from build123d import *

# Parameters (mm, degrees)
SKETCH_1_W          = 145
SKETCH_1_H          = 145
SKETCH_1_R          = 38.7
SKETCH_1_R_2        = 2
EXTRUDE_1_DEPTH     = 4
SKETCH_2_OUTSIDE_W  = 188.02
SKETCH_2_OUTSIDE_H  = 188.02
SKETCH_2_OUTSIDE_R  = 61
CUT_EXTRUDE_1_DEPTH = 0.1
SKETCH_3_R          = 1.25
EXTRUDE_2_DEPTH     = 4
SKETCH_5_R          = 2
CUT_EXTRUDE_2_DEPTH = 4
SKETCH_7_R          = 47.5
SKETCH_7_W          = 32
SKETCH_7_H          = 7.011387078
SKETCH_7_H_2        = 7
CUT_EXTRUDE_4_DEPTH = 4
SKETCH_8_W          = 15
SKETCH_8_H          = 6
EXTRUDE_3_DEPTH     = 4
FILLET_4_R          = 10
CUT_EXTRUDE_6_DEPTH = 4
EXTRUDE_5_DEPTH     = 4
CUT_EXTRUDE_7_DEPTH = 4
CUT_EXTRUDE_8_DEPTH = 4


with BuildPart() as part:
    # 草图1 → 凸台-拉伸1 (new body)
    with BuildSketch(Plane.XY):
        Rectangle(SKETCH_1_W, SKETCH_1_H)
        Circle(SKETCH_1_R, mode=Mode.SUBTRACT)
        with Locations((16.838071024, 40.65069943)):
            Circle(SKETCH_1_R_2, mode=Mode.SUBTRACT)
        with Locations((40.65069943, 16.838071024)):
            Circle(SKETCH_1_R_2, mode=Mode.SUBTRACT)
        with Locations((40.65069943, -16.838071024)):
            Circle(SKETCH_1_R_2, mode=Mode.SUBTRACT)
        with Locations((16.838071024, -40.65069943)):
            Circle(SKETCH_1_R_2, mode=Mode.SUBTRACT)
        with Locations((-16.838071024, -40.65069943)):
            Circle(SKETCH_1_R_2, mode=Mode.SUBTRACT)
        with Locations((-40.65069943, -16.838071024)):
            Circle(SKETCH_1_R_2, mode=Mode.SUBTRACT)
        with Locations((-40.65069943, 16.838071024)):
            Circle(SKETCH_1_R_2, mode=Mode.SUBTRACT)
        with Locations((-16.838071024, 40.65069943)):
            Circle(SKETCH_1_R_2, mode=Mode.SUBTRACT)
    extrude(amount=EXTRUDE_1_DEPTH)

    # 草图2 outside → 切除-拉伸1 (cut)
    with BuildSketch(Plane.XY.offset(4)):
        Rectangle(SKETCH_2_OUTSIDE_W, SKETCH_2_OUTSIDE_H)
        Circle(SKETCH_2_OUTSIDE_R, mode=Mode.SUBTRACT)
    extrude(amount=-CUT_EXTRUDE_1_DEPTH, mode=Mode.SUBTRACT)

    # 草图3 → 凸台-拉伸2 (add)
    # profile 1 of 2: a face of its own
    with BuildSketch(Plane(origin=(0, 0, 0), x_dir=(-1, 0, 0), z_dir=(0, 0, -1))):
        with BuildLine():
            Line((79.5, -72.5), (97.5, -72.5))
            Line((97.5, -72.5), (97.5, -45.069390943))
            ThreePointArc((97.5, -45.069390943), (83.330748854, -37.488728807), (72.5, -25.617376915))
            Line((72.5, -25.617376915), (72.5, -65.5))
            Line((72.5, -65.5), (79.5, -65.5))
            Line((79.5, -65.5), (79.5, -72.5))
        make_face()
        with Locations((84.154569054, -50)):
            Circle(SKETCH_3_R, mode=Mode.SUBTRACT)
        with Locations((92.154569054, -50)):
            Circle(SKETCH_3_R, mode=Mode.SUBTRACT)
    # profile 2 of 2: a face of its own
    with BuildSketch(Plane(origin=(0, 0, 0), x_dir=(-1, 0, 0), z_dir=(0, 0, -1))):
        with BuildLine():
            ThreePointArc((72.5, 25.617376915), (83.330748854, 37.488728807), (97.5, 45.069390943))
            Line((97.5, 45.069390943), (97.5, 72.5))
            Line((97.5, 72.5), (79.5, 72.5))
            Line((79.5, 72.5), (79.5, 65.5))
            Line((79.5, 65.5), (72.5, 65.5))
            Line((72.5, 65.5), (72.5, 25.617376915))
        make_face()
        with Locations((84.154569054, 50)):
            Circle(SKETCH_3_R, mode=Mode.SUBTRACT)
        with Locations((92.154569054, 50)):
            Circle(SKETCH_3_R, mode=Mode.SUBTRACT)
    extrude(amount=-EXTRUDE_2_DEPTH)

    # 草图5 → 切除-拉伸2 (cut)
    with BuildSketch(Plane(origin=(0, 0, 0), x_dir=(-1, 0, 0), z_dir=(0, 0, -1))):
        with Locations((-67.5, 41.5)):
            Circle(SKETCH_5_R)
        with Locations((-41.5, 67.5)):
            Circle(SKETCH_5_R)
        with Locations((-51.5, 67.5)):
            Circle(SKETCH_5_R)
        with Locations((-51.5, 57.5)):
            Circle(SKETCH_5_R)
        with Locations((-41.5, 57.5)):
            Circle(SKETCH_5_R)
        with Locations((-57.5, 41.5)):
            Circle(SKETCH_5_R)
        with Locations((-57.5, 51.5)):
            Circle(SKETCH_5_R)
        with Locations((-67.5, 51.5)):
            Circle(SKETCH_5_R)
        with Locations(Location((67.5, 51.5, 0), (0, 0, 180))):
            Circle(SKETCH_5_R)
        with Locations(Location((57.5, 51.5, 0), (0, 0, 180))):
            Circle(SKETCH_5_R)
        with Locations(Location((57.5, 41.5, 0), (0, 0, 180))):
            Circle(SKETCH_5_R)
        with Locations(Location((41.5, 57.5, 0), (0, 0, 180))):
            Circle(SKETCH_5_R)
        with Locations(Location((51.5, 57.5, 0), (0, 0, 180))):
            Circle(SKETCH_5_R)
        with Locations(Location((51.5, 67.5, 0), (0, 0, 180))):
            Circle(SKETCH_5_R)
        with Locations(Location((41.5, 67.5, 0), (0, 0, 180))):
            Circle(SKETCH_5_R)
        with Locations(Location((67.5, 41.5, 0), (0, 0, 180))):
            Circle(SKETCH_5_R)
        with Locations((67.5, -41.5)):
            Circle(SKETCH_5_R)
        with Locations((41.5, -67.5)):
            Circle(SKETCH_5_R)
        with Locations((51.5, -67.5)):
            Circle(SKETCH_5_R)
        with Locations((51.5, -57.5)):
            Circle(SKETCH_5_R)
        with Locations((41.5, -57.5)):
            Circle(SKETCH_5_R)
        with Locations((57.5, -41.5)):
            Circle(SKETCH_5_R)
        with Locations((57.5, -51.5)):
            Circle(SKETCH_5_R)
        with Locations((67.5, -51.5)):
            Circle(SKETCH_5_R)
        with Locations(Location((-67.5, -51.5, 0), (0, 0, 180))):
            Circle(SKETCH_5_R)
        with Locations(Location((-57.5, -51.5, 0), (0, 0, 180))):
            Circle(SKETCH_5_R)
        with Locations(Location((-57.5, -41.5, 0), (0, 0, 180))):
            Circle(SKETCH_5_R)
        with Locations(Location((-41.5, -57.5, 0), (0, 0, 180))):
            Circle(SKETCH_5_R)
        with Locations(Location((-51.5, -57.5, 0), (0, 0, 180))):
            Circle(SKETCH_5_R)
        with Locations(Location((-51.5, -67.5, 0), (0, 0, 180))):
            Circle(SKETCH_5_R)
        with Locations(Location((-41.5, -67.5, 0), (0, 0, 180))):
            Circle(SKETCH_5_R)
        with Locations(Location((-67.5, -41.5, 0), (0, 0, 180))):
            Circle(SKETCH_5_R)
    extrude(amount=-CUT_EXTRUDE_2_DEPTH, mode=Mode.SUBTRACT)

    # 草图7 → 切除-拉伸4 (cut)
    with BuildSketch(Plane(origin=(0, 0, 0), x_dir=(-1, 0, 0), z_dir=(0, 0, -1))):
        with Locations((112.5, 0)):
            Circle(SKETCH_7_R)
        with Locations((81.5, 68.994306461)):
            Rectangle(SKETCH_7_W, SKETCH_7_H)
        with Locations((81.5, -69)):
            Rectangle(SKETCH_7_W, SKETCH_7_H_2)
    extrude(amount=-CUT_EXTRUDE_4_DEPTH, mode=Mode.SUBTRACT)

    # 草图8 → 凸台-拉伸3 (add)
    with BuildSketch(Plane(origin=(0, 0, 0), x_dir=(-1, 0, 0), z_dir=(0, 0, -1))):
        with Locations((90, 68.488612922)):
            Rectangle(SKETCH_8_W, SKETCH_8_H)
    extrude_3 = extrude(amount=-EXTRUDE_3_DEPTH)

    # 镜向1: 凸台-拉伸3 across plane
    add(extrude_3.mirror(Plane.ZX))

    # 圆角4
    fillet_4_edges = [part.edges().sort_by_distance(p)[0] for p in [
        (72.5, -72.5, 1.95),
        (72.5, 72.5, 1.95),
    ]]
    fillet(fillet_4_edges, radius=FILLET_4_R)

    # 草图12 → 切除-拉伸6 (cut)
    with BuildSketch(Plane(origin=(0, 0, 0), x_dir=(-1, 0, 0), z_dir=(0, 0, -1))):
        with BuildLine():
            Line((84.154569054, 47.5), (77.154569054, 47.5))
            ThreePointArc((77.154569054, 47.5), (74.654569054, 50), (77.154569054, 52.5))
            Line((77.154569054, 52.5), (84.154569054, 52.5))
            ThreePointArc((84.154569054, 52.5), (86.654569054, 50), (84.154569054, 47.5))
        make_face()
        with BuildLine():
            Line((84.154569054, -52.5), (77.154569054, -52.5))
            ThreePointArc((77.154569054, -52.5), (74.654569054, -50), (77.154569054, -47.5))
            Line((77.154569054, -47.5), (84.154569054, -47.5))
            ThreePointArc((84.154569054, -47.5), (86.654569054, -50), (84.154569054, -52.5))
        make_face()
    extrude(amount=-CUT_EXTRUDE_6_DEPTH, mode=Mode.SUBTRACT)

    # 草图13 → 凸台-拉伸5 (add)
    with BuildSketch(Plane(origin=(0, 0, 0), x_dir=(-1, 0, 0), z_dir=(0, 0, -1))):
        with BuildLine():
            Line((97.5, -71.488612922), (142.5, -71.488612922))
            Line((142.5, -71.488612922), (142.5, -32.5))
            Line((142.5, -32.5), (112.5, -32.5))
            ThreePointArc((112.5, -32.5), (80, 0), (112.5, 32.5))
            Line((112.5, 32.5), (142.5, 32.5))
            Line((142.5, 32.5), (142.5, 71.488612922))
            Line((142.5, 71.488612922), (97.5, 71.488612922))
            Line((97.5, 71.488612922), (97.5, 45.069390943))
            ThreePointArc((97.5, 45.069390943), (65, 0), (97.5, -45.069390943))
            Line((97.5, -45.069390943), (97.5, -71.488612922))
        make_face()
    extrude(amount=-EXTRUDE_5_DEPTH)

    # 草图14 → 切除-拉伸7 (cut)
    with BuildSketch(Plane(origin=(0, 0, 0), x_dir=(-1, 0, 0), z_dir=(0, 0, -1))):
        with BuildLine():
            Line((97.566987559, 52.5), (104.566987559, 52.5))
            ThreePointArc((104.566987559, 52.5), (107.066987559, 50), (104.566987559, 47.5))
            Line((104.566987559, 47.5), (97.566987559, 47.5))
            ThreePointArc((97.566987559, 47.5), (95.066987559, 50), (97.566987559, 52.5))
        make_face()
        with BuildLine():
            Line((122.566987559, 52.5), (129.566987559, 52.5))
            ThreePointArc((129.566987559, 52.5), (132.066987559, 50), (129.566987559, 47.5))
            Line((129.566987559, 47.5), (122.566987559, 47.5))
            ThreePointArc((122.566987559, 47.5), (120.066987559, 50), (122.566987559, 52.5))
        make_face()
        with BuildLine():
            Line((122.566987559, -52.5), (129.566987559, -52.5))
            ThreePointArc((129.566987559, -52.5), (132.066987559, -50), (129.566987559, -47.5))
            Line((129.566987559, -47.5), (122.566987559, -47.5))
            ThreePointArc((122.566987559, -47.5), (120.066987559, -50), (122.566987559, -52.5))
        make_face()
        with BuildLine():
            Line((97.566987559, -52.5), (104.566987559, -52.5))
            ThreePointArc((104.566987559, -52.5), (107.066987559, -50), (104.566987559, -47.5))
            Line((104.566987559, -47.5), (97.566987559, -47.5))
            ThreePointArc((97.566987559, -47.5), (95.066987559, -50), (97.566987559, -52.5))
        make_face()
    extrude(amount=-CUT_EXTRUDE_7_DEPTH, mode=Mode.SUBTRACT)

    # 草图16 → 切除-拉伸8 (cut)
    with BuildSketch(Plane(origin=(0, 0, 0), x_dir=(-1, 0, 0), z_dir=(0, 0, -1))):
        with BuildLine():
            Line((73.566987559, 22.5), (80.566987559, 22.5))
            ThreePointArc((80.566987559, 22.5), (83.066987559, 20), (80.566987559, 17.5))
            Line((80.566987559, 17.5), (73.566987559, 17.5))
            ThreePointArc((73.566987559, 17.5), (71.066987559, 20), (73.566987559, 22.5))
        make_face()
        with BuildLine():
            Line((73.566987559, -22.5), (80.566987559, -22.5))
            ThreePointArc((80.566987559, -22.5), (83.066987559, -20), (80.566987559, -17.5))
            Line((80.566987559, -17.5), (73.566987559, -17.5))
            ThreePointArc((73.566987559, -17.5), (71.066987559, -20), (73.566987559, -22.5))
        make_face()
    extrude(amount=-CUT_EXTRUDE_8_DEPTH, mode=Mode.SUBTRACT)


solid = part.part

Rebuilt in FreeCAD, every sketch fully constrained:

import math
import FreeCAD as App
import Part
import Sketcher


def edges_at(feature, points):
    """Names of the edges that pass closest to the given points."""
    edges = feature.Shape.Edges
    near = lambda p: min(range(len(edges)), key=lambda i: edges[i].distToShape(Part.Vertex(*p))[0])
    return sorted({f"Edge{near(p) + 1}" for p in points})


def add_polygon(sketch, points):
    """Adds a closed chain of lines whose ends are joined by coincident constraints."""
    first, n = sketch.GeometryCount, len(points)
    for a, b in zip(points, points[1:] + points[:1]):
        sketch.addGeometry(Part.LineSegment(App.Vector(*a, 0), App.Vector(*b, 0)), False)
    for i in range(n):
        sketch.addConstraint(Sketcher.Constraint("Coincident", first + i, 2, first + (i + 1) % n, 1))

doc = App.newDocument("Part")
body = doc.addObject("PartDesign::Body", "Body")

# Sketch on XY plane
sketch1 = doc.addObject("Sketcher::SketchObject", "Sketch")
body.addObject(sketch1)
sketch1.AttachmentSupport = (doc.XY_Plane, [""])
sketch1.MapMode = "FlatFace"
add_polygon(sketch1, [(-72.5, 72.5), (-72.5, -72.5), (72.5, -72.5), (72.5, 72.5)])  # lines 0-3
sketch1.addGeometry(Part.Circle(App.Vector(-16.8, -40.7, 0), App.Vector(0, 0, 1), 2), False)  # 4
sketch1.addGeometry(Part.Circle(App.Vector(-40.7, -16.8, 0), App.Vector(0, 0, 1), 2), False)  # 5
sketch1.addGeometry(Part.Circle(App.Vector(16.8, -40.7, 0), App.Vector(0, 0, 1), 2), False)  # 6
sketch1.addGeometry(Part.Circle(App.Vector(40.7, -16.8, 0), App.Vector(0, 0, 1), 2), False)  # 7
sketch1.addGeometry(Part.Circle(App.Vector(-40.7, 16.8, 0), App.Vector(0, 0, 1), 2), False)  # 8
sketch1.addGeometry(Part.Circle(App.Vector(-16.8, 40.7, 0), App.Vector(0, 0, 1), 2), False)  # 9
sketch1.addGeometry(Part.Circle(App.Vector(0, 0, 0), App.Vector(0, 0, 1), 38.7), False)  # 10
sketch1.addGeometry(Part.Circle(App.Vector(40.7, 16.8, 0), App.Vector(0, 0, 1), 2), False)  # 11
sketch1.addGeometry(Part.Circle(App.Vector(16.8, 40.7, 0), App.Vector(0, 0, 1), 2), False)  # 12
sketch1.addConstraint(Sketcher.Constraint("Vertical", 0))
sketch1.addConstraint(Sketcher.Constraint("Horizontal", 1))
sketch1.addConstraint(Sketcher.Constraint("Vertical", 2))
sketch1.addConstraint(Sketcher.Constraint("Horizontal", 3))
sketch1.addConstraint(Sketcher.Constraint("Coincident", 10, 3, -1, 1))
sketch1.addConstraint(Sketcher.Constraint("Equal", 4, 5))
sketch1.addConstraint(Sketcher.Constraint("Equal", 5, 6))
sketch1.addConstraint(Sketcher.Constraint("Equal", 6, 7))
sketch1.addConstraint(Sketcher.Constraint("Equal", 7, 8))
sketch1.addConstraint(Sketcher.Constraint("Equal", 8, 9))
sketch1.addConstraint(Sketcher.Constraint("Equal", 9, 11))
sketch1.addConstraint(Sketcher.Constraint("Equal", 11, 12))
sketch1.addConstraint(Sketcher.Constraint("Symmetric", 7, 3, 8, 3, -1, 1))
sketch1.addConstraint(Sketcher.Constraint("Symmetric", 6, 3, 9, 3, -1, 1))
sketch1.addConstraint(Sketcher.Constraint("Symmetric", 5, 3, 11, 3, -1, 1))
sketch1.addConstraint(Sketcher.Constraint("Symmetric", 4, 3, 12, 3, -1, 1))
sketch1.addConstraint(Sketcher.Constraint("Symmetric", 0, 2, 2, 2, -1, 1))
sketch1.addConstraint(Sketcher.Constraint("Symmetric", 4, 3, 6, 3, -2))
sketch1.addConstraint(Sketcher.Constraint("Symmetric", 5, 3, 7, 3, -2))
sketch1.addConstraint(Sketcher.Constraint("Equal", 3, 0))
sketch1.addConstraint(Sketcher.Constraint("Diameter", 4, 4.0))
sketch1.addConstraint(Sketcher.Constraint("Diameter", 10, 77.4))
sketch1.addConstraint(Sketcher.Constraint("DistanceX", 1, 1, 1, 2, 145.0))
sketch1.addConstraint(Sketcher.Constraint("DistanceY", 4, 3, -1, 1, 40.650699))
sketch1.addConstraint(Sketcher.Constraint("DistanceX", 5, 3, -1, 1, 40.650699))
sketch1.addConstraint(Sketcher.Constraint("DistanceX", 4, 3, -1, 1, 16.838071))
sketch1.addConstraint(Sketcher.Constraint("DistanceY", 5, 3, -1, 1, 16.838071))
pad1 = doc.addObject("PartDesign::Pad", "Pad")
body.addObject(pad1)
pad1.Profile = sketch1
pad1.Length = 4

# Sketch on XY plane
sketch2 = doc.addObject("Sketcher::SketchObject", "Sketch001")
body.addObject(sketch2)
sketch2.AttachmentSupport = (doc.XY_Plane, [""])
sketch2.MapMode = "FlatFace"
sketch2.AttachmentOffset = App.Placement(App.Vector(0, 0, 4), App.Rotation())
add_polygon(sketch2, [(-94, 94), (-94, -94), (94, -94), (94, 94)])  # lines 0-3
sketch2.addGeometry(Part.Circle(App.Vector(0, 0, 0), App.Vector(0, 0, 1), 61), False)  # 4
sketch2.addConstraint(Sketcher.Constraint("Vertical", 0))
sketch2.addConstraint(Sketcher.Constraint("Horizontal", 1))
sketch2.addConstraint(Sketcher.Constraint("Vertical", 2))
sketch2.addConstraint(Sketcher.Constraint("Horizontal", 3))
sketch2.addConstraint(Sketcher.Constraint("Coincident", 4, 3, -1, 1))
sketch2.addConstraint(Sketcher.Constraint("Symmetric", 0, 2, 2, 2, -1, 1))
sketch2.addConstraint(Sketcher.Constraint("Equal", 3, 0))
sketch2.addConstraint(Sketcher.Constraint("Diameter", 4, 122.0))
sketch2.addConstraint(Sketcher.Constraint("DistanceX", 1, 1, 1, 2, 188.02))
pocket1 = doc.addObject("PartDesign::Pocket", "Pocket")
body.addObject(pocket1)
pocket1.Profile = sketch2
pocket1.Length = 0.1

# Sketch on XY plane
sketch3 = doc.addObject("Sketcher::SketchObject", "Sketch002")
body.addObject(sketch3)
sketch3.AttachmentSupport = (doc.XY_Plane, [""])
sketch3.MapMode = "FlatFace"
sketch3.addGeometry(Part.LineSegment(App.Vector(-79.5, -72.5, 0), App.Vector(-97.5, -72.5, 0)), False)
sketch3.addGeometry(Part.LineSegment(App.Vector(-97.5, -72.5, 0), App.Vector(-97.5, -45.1, 0)), False)
sketch3.addGeometry(Part.ArcOfCircle(Part.Circle(App.Vector(-112.5, 0, 0), App.Vector(0, 0, 1), 47.5), math.radians(-72), math.radians(-33)), False)
sketch3.addGeometry(Part.LineSegment(App.Vector(-72.5, -25.6, 0), App.Vector(-72.5, -65.5, 0)), False)
sketch3.addGeometry(Part.LineSegment(App.Vector(-72.5, -65.5, 0), App.Vector(-79.5, -65.5, 0)), False)
sketch3.addGeometry(Part.LineSegment(App.Vector(-79.5, -65.5, 0), App.Vector(-79.5, -72.5, 0)), False)
sketch3.addGeometry(Part.Circle(App.Vector(-84.2, -50, 0), App.Vector(0, 0, 1), 1.2), False)
sketch3.addGeometry(Part.Circle(App.Vector(-92.2, -50, 0), App.Vector(0, 0, 1), 1.2), False)
sketch3.addGeometry(Part.ArcOfCircle(Part.Circle(App.Vector(-112.5, 0, 0), App.Vector(0, 0, 1), 47.5), math.radians(33), math.radians(72)), False)
sketch3.addGeometry(Part.LineSegment(App.Vector(-97.5, 45.1, 0), App.Vector(-97.5, 72.5, 0)), False)
sketch3.addGeometry(Part.LineSegment(App.Vector(-97.5, 72.5, 0), App.Vector(-79.5, 72.5, 0)), False)
sketch3.addGeometry(Part.LineSegment(App.Vector(-79.5, 72.5, 0), App.Vector(-79.5, 65.5, 0)), False)
sketch3.addGeometry(Part.LineSegment(App.Vector(-79.5, 65.5, 0), App.Vector(-72.5, 65.5, 0)), False)
sketch3.addGeometry(Part.LineSegment(App.Vector(-72.5, 65.5, 0), App.Vector(-72.5, 25.6, 0)), False)
sketch3.addGeometry(Part.Circle(App.Vector(-84.2, 50, 0), App.Vector(0, 0, 1), 1.2), False)
sketch3.addGeometry(Part.Circle(App.Vector(-92.2, 50, 0), App.Vector(0, 0, 1), 1.2), False)
sketch3.addConstraint(Sketcher.Constraint("Coincident", 0, 2, 1, 1))
sketch3.addConstraint(Sketcher.Constraint("Coincident", 1, 2, 2, 1))
sketch3.addConstraint(Sketcher.Constraint("Coincident", 2, 2, 3, 1))
sketch3.addConstraint(Sketcher.Constraint("Coincident", 3, 2, 4, 1))
sketch3.addConstraint(Sketcher.Constraint("Coincident", 4, 2, 5, 1))
sketch3.addConstraint(Sketcher.Constraint("Coincident", 5, 2, 0, 1))
sketch3.addConstraint(Sketcher.Constraint("Coincident", 8, 2, 9, 1))
sketch3.addConstraint(Sketcher.Constraint("Coincident", 9, 2, 10, 1))
sketch3.addConstraint(Sketcher.Constraint("Coincident", 10, 2, 11, 1))
sketch3.addConstraint(Sketcher.Constraint("Coincident", 11, 2, 12, 1))
sketch3.addConstraint(Sketcher.Constraint("Coincident", 12, 2, 13, 1))
sketch3.addConstraint(Sketcher.Constraint("Coincident", 13, 2, 8, 1))
sketch3.addConstraint(Sketcher.Constraint("Horizontal", 0))
sketch3.addConstraint(Sketcher.Constraint("Vertical", 1))
sketch3.addConstraint(Sketcher.Constraint("Vertical", 3))
sketch3.addConstraint(Sketcher.Constraint("Horizontal", 4))
sketch3.addConstraint(Sketcher.Constraint("Vertical", 5))
sketch3.addConstraint(Sketcher.Constraint("Vertical", 9))
sketch3.addConstraint(Sketcher.Constraint("Horizontal", 10))
sketch3.addConstraint(Sketcher.Constraint("Vertical", 11))
sketch3.addConstraint(Sketcher.Constraint("Horizontal", 12))
sketch3.addConstraint(Sketcher.Constraint("Vertical", 13))
sketch3.addConstraint(Sketcher.Constraint("Coincident", 8, 3, 2, 3))
sketch3.addConstraint(Sketcher.Constraint("Equal", 6, 7))
sketch3.addConstraint(Sketcher.Constraint("Equal", 2, 8))
sketch3.addConstraint(Sketcher.Constraint("Equal", 7, 14))
sketch3.addConstraint(Sketcher.Constraint("Equal", 14, 15))
sketch3.addConstraint(Sketcher.Constraint("Symmetric", 6, 3, 14, 3, -1))
sketch3.addConstraint(Sketcher.Constraint("Symmetric", 7, 3, 15, 3, -1))
sketch3.addConstraint(Sketcher.Constraint("Symmetric", 1, 2, 8, 2, -1))
sketch3.addConstraint(Sketcher.Constraint("Symmetric", 5, 2, 10, 2, -1))
sketch3.addConstraint(Sketcher.Constraint("Symmetric", 3, 2, 12, 2, -1))
sketch3.addConstraint(Sketcher.Constraint("Horizontal", 6, 3, 7, 3))
sketch3.addConstraint(Sketcher.Constraint("Equal", 12, 5))
sketch3.addConstraint(Sketcher.Constraint("Diameter", 6, 2.5))
sketch3.addConstraint(Sketcher.Constraint("Radius", 2, 47.5))
sketch3.addConstraint(Sketcher.Constraint("DistanceX", 0, 2, 0, 1, 18.0))
sketch3.addConstraint(Sketcher.Constraint("DistanceX", 4, 2, 4, 1, 7.0))
sketch3.addConstraint(Sketcher.Constraint("DistanceY", 6, 3, -1, 1, 50.0))
sketch3.addConstraint(Sketcher.Constraint("DistanceX", 7, 3, 6, 3, 8.0))
sketch3.addConstraint(Sketcher.Constraint("DistanceX", 8, 3, 0, 2, 15.0))
sketch3.addConstraint(Sketcher.Constraint("DistanceX", 2, 3, -1, 1, 112.5))
sketch3.addConstraint(Sketcher.Constraint("DistanceY", 0, 2, -1, 1, 72.5))
sketch3.addConstraint(Sketcher.Constraint("DistanceX", 6, 3, -1, 1, 84.154569))
pad2 = doc.addObject("PartDesign::Pad", "Pad001")
body.addObject(pad2)
pad2.Profile = sketch3
pad2.Length = 4

# Sketch on XY plane
sketch4 = doc.addObject("Sketcher::SketchObject", "Sketch003")
body.addObject(sketch4)
sketch4.AttachmentSupport = (doc.XY_Plane, [""])
sketch4.MapMode = "FlatFace"
sketch4.addGeometry(Part.Circle(App.Vector(67.5, 41.5, 0), App.Vector(0, 0, 1), 2), False)
sketch4.addGeometry(Part.Circle(App.Vector(41.5, 67.5, 0), App.Vector(0, 0, 1), 2), False)
sketch4.addGeometry(Part.Circle(App.Vector(51.5, 67.5, 0), App.Vector(0, 0, 1), 2), False)
sketch4.addGeometry(Part.Circle(App.Vector(51.5, 57.5, 0), App.Vector(0, 0, 1), 2), False)
sketch4.addGeometry(Part.Circle(App.Vector(41.5, 57.5, 0), App.Vector(0, 0, 1), 2), False)
sketch4.addGeometry(Part.Circle(App.Vector(57.5, 41.5, 0), App.Vector(0, 0, 1), 2), False)
sketch4.addGeometry(Part.Circle(App.Vector(57.5, 51.5, 0), App.Vector(0, 0, 1), 2), False)
sketch4.addGeometry(Part.Circle(App.Vector(67.5, 51.5, 0), App.Vector(0, 0, 1), 2), False)
sketch4.addGeometry(Part.Circle(App.Vector(-67.5, 51.5, 0), App.Vector(0, 0, 1), 2), False)
sketch4.addGeometry(Part.Circle(App.Vector(-57.5, 51.5, 0), App.Vector(0, 0, 1), 2), False)
sketch4.addGeometry(Part.Circle(App.Vector(-57.5, 41.5, 0), App.Vector(0, 0, 1), 2), False)
sketch4.addGeometry(Part.Circle(App.Vector(-41.5, 57.5, 0), App.Vector(0, 0, 1), 2), False)
sketch4.addGeometry(Part.Circle(App.Vector(-51.5, 57.5, 0), App.Vector(0, 0, 1), 2), False)
sketch4.addGeometry(Part.Circle(App.Vector(-51.5, 67.5, 0), App.Vector(0, 0, 1), 2), False)
sketch4.addGeometry(Part.Circle(App.Vector(-41.5, 67.5, 0), App.Vector(0, 0, 1), 2), False)
sketch4.addGeometry(Part.Circle(App.Vector(-67.5, 41.5, 0), App.Vector(0, 0, 1), 2), False)
sketch4.addGeometry(Part.Circle(App.Vector(-67.5, -41.5, 0), App.Vector(0, 0, 1), 2), False)
sketch4.addGeometry(Part.Circle(App.Vector(-41.5, -67.5, 0), App.Vector(0, 0, 1), 2), False)
sketch4.addGeometry(Part.Circle(App.Vector(-51.5, -67.5, 0), App.Vector(0, 0, 1), 2), False)
sketch4.addGeometry(Part.Circle(App.Vector(-51.5, -57.5, 0), App.Vector(0, 0, 1), 2), False)
sketch4.addGeometry(Part.Circle(App.Vector(-41.5, -57.5, 0), App.Vector(0, 0, 1), 2), False)
sketch4.addGeometry(Part.Circle(App.Vector(-57.5, -41.5, 0), App.Vector(0, 0, 1), 2), False)
sketch4.addGeometry(Part.Circle(App.Vector(-57.5, -51.5, 0), App.Vector(0, 0, 1), 2), False)
sketch4.addGeometry(Part.Circle(App.Vector(-67.5, -51.5, 0), App.Vector(0, 0, 1), 2), False)
sketch4.addGeometry(Part.Circle(App.Vector(67.5, -51.5, 0), App.Vector(0, 0, 1), 2), False)
sketch4.addGeometry(Part.Circle(App.Vector(57.5, -51.5, 0), App.Vector(0, 0, 1), 2), False)
sketch4.addGeometry(Part.Circle(App.Vector(57.5, -41.5, 0), App.Vector(0, 0, 1), 2), False)
sketch4.addGeometry(Part.Circle(App.Vector(41.5, -57.5, 0), App.Vector(0, 0, 1), 2), False)
sketch4.addGeometry(Part.Circle(App.Vector(51.5, -57.5, 0), App.Vector(0, 0, 1), 2), False)
sketch4.addGeometry(Part.Circle(App.Vector(51.5, -67.5, 0), App.Vector(0, 0, 1), 2), False)
sketch4.addGeometry(Part.Circle(App.Vector(41.5, -67.5, 0), App.Vector(0, 0, 1), 2), False)
sketch4.addGeometry(Part.Circle(App.Vector(67.5, -41.5, 0), App.Vector(0, 0, 1), 2), False)
sketch4.addConstraint(Sketcher.Constraint("Equal", 0, 1))
sketch4.addConstraint(Sketcher.Constraint("Equal", 1, 2))
sketch4.addConstraint(Sketcher.Constraint("Equal", 2, 3))
sketch4.addConstraint(Sketcher.Constraint("Equal", 3, 4))
sketch4.addConstraint(Sketcher.Constraint("Equal", 4, 5))
sketch4.addConstraint(Sketcher.Constraint("Equal", 5, 6))
sketch4.addConstraint(Sketcher.Constraint("Equal", 6, 7))
sketch4.addConstraint(Sketcher.Constraint("Equal", 7, 8))
sketch4.addConstraint(Sketcher.Constraint("Equal", 8, 9))
sketch4.addConstraint(Sketcher.Constraint("Equal", 9, 10))
sketch4.addConstraint(Sketcher.Constraint("Equal", 10, 11))
sketch4.addConstraint(Sketcher.Constraint("Equal", 11, 12))
sketch4.addConstraint(Sketcher.Constraint("Equal", 12, 13))
sketch4.addConstraint(Sketcher.Constraint("Equal", 13, 14))
sketch4.addConstraint(Sketcher.Constraint("Equal", 14, 15))
sketch4.addConstraint(Sketcher.Constraint("Equal", 15, 16))
sketch4.addConstraint(Sketcher.Constraint("Equal", 16, 17))
sketch4.addConstraint(Sketcher.Constraint("Equal", 17, 18))
sketch4.addConstraint(Sketcher.Constraint("Equal", 18, 19))
sketch4.addConstraint(Sketcher.Constraint("Equal", 19, 20))
sketch4.addConstraint(Sketcher.Constraint("Equal", 20, 21))
sketch4.addConstraint(Sketcher.Constraint("Equal", 21, 22))
sketch4.addConstraint(Sketcher.Constraint("Equal", 22, 23))
sketch4.addConstraint(Sketcher.Constraint("Equal", 23, 24))
sketch4.addConstraint(Sketcher.Constraint("Equal", 24, 25))
sketch4.addConstraint(Sketcher.Constraint("Equal", 25, 26))
sketch4.addConstraint(Sketcher.Constraint("Equal", 26, 27))
sketch4.addConstraint(Sketcher.Constraint("Equal", 27, 28))
sketch4.addConstraint(Sketcher.Constraint("Equal", 28, 29))
sketch4.addConstraint(Sketcher.Constraint("Equal", 29, 30))
sketch4.addConstraint(Sketcher.Constraint("Equal", 30, 31))
sketch4.addConstraint(Sketcher.Constraint("Symmetric", 0, 3, 16, 3, -1, 1))
sketch4.addConstraint(Sketcher.Constraint("Symmetric", 1, 3, 17, 3, -1, 1))
sketch4.addConstraint(Sketcher.Constraint("Symmetric", 2, 3, 18, 3, -1, 1))
sketch4.addConstraint(Sketcher.Constraint("Symmetric", 3, 3, 19, 3, -1, 1))
sketch4.addConstraint(Sketcher.Constraint("Symmetric", 4, 3, 20, 3, -1, 1))
sketch4.addConstraint(Sketcher.Constraint("Symmetric", 5, 3, 21, 3, -1, 1))
sketch4.addConstraint(Sketcher.Constraint("Symmetric", 6, 3, 22, 3, -1, 1))
sketch4.addConstraint(Sketcher.Constraint("Symmetric", 7, 3, 23, 3, -1, 1))
sketch4.addConstraint(Sketcher.Constraint("Symmetric", 8, 3, 24, 3, -1, 1))
sketch4.addConstraint(Sketcher.Constraint("Symmetric", 9, 3, 25, 3, -1, 1))
sketch4.addConstraint(Sketcher.Constraint("Symmetric", 10, 3, 26, 3, -1, 1))
sketch4.addConstraint(Sketcher.Constraint("Symmetric", 11, 3, 27, 3, -1, 1))
sketch4.addConstraint(Sketcher.Constraint("Symmetric", 12, 3, 28, 3, -1, 1))
sketch4.addConstraint(Sketcher.Constraint("Symmetric", 13, 3, 29, 3, -1, 1))
sketch4.addConstraint(Sketcher.Constraint("Symmetric", 14, 3, 30, 3, -1, 1))
sketch4.addConstraint(Sketcher.Constraint("Symmetric", 15, 3, 31, 3, -1, 1))
sketch4.addConstraint(Sketcher.Constraint("Symmetric", 7, 3, 8, 3, -2))
sketch4.addConstraint(Sketcher.Constraint("Symmetric", 6, 3, 9, 3, -2))
sketch4.addConstraint(Sketcher.Constraint("Symmetric", 5, 3, 10, 3, -2))
sketch4.addConstraint(Sketcher.Constraint("Symmetric", 4, 3, 11, 3, -2))
sketch4.addConstraint(Sketcher.Constraint("Symmetric", 3, 3, 12, 3, -2))
sketch4.addConstraint(Sketcher.Constraint("Symmetric", 2, 3, 13, 3, -2))
sketch4.addConstraint(Sketcher.Constraint("Symmetric", 1, 3, 14, 3, -2))
sketch4.addConstraint(Sketcher.Constraint("Symmetric", 0, 3, 15, 3, -2))
sketch4.addConstraint(Sketcher.Constraint("Horizontal", 1, 3, 2, 3))
sketch4.addConstraint(Sketcher.Constraint("Horizontal", 3, 3, 4, 3))
sketch4.addConstraint(Sketcher.Constraint("Horizontal", 0, 3, 5, 3))
sketch4.addConstraint(Sketcher.Constraint("Horizontal", 6, 3, 7, 3))
sketch4.addConstraint(Sketcher.Constraint("Vertical", 2, 3, 3, 3))
sketch4.addConstraint(Sketcher.Constraint("Vertical", 1, 3, 4, 3))
sketch4.addConstraint(Sketcher.Constraint("Vertical", 5, 3, 6, 3))
sketch4.addConstraint(Sketcher.Constraint("Vertical", 0, 3, 7, 3))
sketch4.addConstraint(Sketcher.Constraint("Diameter", 0, 4.0))
sketch4.addConstraint(Sketcher.Constraint("DistanceX", 1, 3, 0, 3, 26.0))
sketch4.addConstraint(Sketcher.Constraint("DistanceY", 0, 3, 1, 3, 26.0))
sketch4.addConstraint(Sketcher.Constraint("DistanceX", 1, 3, 2, 3, 10.0))
sketch4.addConstraint(Sketcher.Constraint("DistanceY", 3, 3, 2, 3, 10.0))
sketch4.addConstraint(Sketcher.Constraint("DistanceX", 5, 3, 0, 3, 10.0))
sketch4.addConstraint(Sketcher.Constraint("DistanceY", 6, 3, 3, 3, 6.0))
sketch4.addConstraint(Sketcher.Constraint("DistanceX", 8, 3, 4, 3, 109.0))
sketch4.addConstraint(Sketcher.Constraint("DistanceY", 16, 3, 15, 3, 83.0))
pocket2 = doc.addObject("PartDesign::Pocket", "Pocket001")
body.addObject(pocket2)
pocket2.Profile = sketch4
pocket2.Length = 4
pocket2.Reversed = True

# Sketch on XY plane
sketch5 = doc.addObject("Sketcher::SketchObject", "Sketch004")
body.addObject(sketch5)
sketch5.AttachmentSupport = (doc.XY_Plane, [""])
sketch5.MapMode = "FlatFace"
sketch5.addGeometry(Part.Circle(App.Vector(-112, 0, 0), App.Vector(0, 0, 1), 48), False)  # 0
add_polygon(sketch5, [(-66, 72), (-66, 65), (-98, 65), (-98, 72)])  # lines 1-4
add_polygon(sketch5, [(-66, -66), (-66, -72), (-98, -72), (-98, -66)])  # lines 5-8
sketch5.addConstraint(Sketcher.Constraint("Vertical", 1))
sketch5.addConstraint(Sketcher.Constraint("Horizontal", 2))
sketch5.addConstraint(Sketcher.Constraint("Vertical", 3))
sketch5.addConstraint(Sketcher.Constraint("Horizontal", 4))
sketch5.addConstraint(Sketcher.Constraint("Vertical", 5))
sketch5.addConstraint(Sketcher.Constraint("Horizontal", 6))
sketch5.addConstraint(Sketcher.Constraint("Vertical", 7))
sketch5.addConstraint(Sketcher.Constraint("Horizontal", 8))
sketch5.addConstraint(Sketcher.Constraint("Symmetric", 4, 2, 5, 2, -1))
sketch5.addConstraint(Sketcher.Constraint("PointOnObject", 0, 3, -1))
sketch5.addConstraint(Sketcher.Constraint("Vertical", 3, 2, 6, 2))
sketch5.addConstraint(Sketcher.Constraint("Diameter", 0, 95.0))
sketch5.addConstraint(Sketcher.Constraint("DistanceX", 2, 2, 2, 1, 32.0))
sketch5.addConstraint(Sketcher.Constraint("DistanceY", 5, 2, 5, 1, 7.0))
sketch5.addConstraint(Sketcher.Constraint("DistanceX", 0, 3, 1, 2, 47.0))
sketch5.addConstraint(Sketcher.Constraint("DistanceY", 5, 2, 4, 2, 145.0))
sketch5.addConstraint(Sketcher.Constraint("DistanceX", 0, 3, -1, 1, 112.5))
sketch5.addConstraint(Sketcher.Constraint("DistanceY", 1, 2, 1, 1, 7.011387))
pocket3 = doc.addObject("PartDesign::Pocket", "Pocket002")
body.addObject(pocket3)
pocket3.Profile = sketch5
pocket3.Length = 4
pocket3.Reversed = True

# Sketch on XY plane
sketch6 = doc.addObject("Sketcher::SketchObject", "Sketch005")
body.addObject(sketch6)
sketch6.AttachmentSupport = (doc.XY_Plane, [""])
sketch6.MapMode = "FlatFace"
add_polygon(sketch6, [(-82, 71), (-82, 65), (-98, 65), (-98, 71)])  # lines 0-3
sketch6.addConstraint(Sketcher.Constraint("Vertical", 0))
sketch6.addConstraint(Sketcher.Constraint("Horizontal", 1))
sketch6.addConstraint(Sketcher.Constraint("Vertical", 2))
sketch6.addConstraint(Sketcher.Constraint("Horizontal", 3))
sketch6.addConstraint(Sketcher.Constraint("DistanceX", 1, 2, 1, 1, 15.0))
sketch6.addConstraint(Sketcher.Constraint("DistanceY", 0, 2, 0, 1, 6.0))
sketch6.addConstraint(Sketcher.Constraint("DistanceX", 0, 2, -1, 1, 82.5))
sketch6.addConstraint(Sketcher.Constraint("DistanceY", -1, 1, 0, 2, 65.488613))
pad3 = doc.addObject("PartDesign::Pad", "Pad002")
body.addObject(pad3)
pad3.Profile = sketch6
pad3.Length = 4
doc.recompute()

mirrored = doc.addObject("PartDesign::Mirrored", "Mirrored")
body.addObject(mirrored)
mirrored.Originals = [pad3]
mirrored.MirrorPlane = (doc.XZ_Plane, [""])
body.Tip = mirrored
doc.recompute()

fillet = doc.addObject("PartDesign::Fillet", "Fillet")
body.addObject(fillet)
fillet.Base = (mirrored, edges_at(mirrored, [(72.5, -72.5, 1.95), (72.5, 72.5, 1.95)]))
fillet.Radius = 10

# Sketch on XY plane
sketch7 = doc.addObject("Sketcher::SketchObject", "Sketch006")
body.addObject(sketch7)
sketch7.AttachmentSupport = (doc.XY_Plane, [""])
sketch7.MapMode = "FlatFace"
sketch7.addGeometry(Part.LineSegment(App.Vector(-77.2, 47.5, 0), App.Vector(-84.2, 47.5, 0)), False)
sketch7.addGeometry(Part.ArcOfCircle(Part.Circle(App.Vector(-84.2, 50, 0), App.Vector(0, 0, 1), 2.5), math.radians(90), math.radians(270)), False)
sketch7.addGeometry(Part.LineSegment(App.Vector(-84.2, 52.5, 0), App.Vector(-77.2, 52.5, 0)), False)
sketch7.addGeometry(Part.ArcOfCircle(Part.Circle(App.Vector(-77.2, 50, 0), App.Vector(0, 0, 1), 2.5), math.radians(-90), math.radians(90)), False)
sketch7.addGeometry(Part.LineSegment(App.Vector(-77.2, -52.5, 0), App.Vector(-84.2, -52.5, 0)), False)
sketch7.addGeometry(Part.ArcOfCircle(Part.Circle(App.Vector(-84.2, -50, 0), App.Vector(0, 0, 1), 2.5), math.radians(90), math.radians(270)), False)
sketch7.addGeometry(Part.LineSegment(App.Vector(-84.2, -47.5, 0), App.Vector(-77.2, -47.5, 0)), False)
sketch7.addGeometry(Part.ArcOfCircle(Part.Circle(App.Vector(-77.2, -50, 0), App.Vector(0, 0, 1), 2.5), math.radians(-90), math.radians(90)), False)
sketch7.addConstraint(Sketcher.Constraint("Tangent", 0, 2, 1, 2))
sketch7.addConstraint(Sketcher.Constraint("Tangent", 1, 1, 2, 1))
sketch7.addConstraint(Sketcher.Constraint("Tangent", 2, 2, 3, 2))
sketch7.addConstraint(Sketcher.Constraint("Tangent", 3, 1, 0, 1))
sketch7.addConstraint(Sketcher.Constraint("Tangent", 4, 2, 5, 2))
sketch7.addConstraint(Sketcher.Constraint("Tangent", 5, 1, 6, 1))
sketch7.addConstraint(Sketcher.Constraint("Tangent", 6, 2, 7, 2))
sketch7.addConstraint(Sketcher.Constraint("Tangent", 7, 1, 4, 1))
sketch7.addConstraint(Sketcher.Constraint("Horizontal", 0))
sketch7.addConstraint(Sketcher.Constraint("Horizontal", 2))
sketch7.addConstraint(Sketcher.Constraint("Horizontal", 4))
sketch7.addConstraint(Sketcher.Constraint("Horizontal", 6))
sketch7.addConstraint(Sketcher.Constraint("Equal", 3, 5))
sketch7.addConstraint(Sketcher.Constraint("Symmetric", 1, 3, 5, 3, -1))
sketch7.addConstraint(Sketcher.Constraint("Vertical", 3, 3, 7, 3))
sketch7.addConstraint(Sketcher.Constraint("Radius", 1, 2.5))
sketch7.addConstraint(Sketcher.Constraint("DistanceX", 0, 2, 0, 1, 7.0))
sketch7.addConstraint(Sketcher.Constraint("DistanceY", -1, 1, 1, 3, 50.0))
sketch7.addConstraint(Sketcher.Constraint("DistanceX", 1, 3, -1, 1, 84.154569))
pocket4 = doc.addObject("PartDesign::Pocket", "Pocket003")
body.addObject(pocket4)
pocket4.Profile = sketch7
pocket4.Length = 4
pocket4.Reversed = True

# Sketch on XY plane
sketch8 = doc.addObject("Sketcher::SketchObject", "Sketch007")
body.addObject(sketch8)
sketch8.AttachmentSupport = (doc.XY_Plane, [""])
sketch8.MapMode = "FlatFace"
sketch8.addGeometry(Part.LineSegment(App.Vector(-98, -71, 0), App.Vector(-142, -71, 0)), False)
sketch8.addGeometry(Part.LineSegment(App.Vector(-142, -71, 0), App.Vector(-142, -32, 0)), False)
sketch8.addGeometry(Part.LineSegment(App.Vector(-142, -32, 0), App.Vector(-112, -32, 0)), False)
sketch8.addGeometry(Part.ArcOfCircle(Part.Circle(App.Vector(-112, 0, 0), App.Vector(0, 0, 1), 32), math.radians(-90), math.radians(90)), False)
sketch8.addGeometry(Part.LineSegment(App.Vector(-112, 32, 0), App.Vector(-142, 32, 0)), False)
sketch8.addGeometry(Part.LineSegment(App.Vector(-142, 32, 0), App.Vector(-142, 71, 0)), False)
sketch8.addGeometry(Part.LineSegment(App.Vector(-142, 71, 0), App.Vector(-98, 71, 0)), False)
sketch8.addGeometry(Part.LineSegment(App.Vector(-98, 71, 0), App.Vector(-98, 45, 0)), False)
sketch8.addGeometry(Part.ArcOfCircle(Part.Circle(App.Vector(-112, 0, 0), App.Vector(0, 0, 1), 48), math.radians(-72), math.radians(72)), False)
sketch8.addGeometry(Part.LineSegment(App.Vector(-98, -45, 0), App.Vector(-98, -71, 0)), False)
sketch8.addConstraint(Sketcher.Constraint("Coincident", 0, 2, 1, 1))
sketch8.addConstraint(Sketcher.Constraint("Coincident", 1, 2, 2, 1))
sketch8.addConstraint(Sketcher.Constraint("Tangent", 2, 2, 3, 1))
sketch8.addConstraint(Sketcher.Constraint("Tangent", 3, 2, 4, 1))
sketch8.addConstraint(Sketcher.Constraint("Coincident", 4, 2, 5, 1))
sketch8.addConstraint(Sketcher.Constraint("Coincident", 5, 2, 6, 1))
sketch8.addConstraint(Sketcher.Constraint("Coincident", 6, 2, 7, 1))
sketch8.addConstraint(Sketcher.Constraint("Coincident", 7, 2, 8, 2))
sketch8.addConstraint(Sketcher.Constraint("Coincident", 8, 1, 9, 1))
sketch8.addConstraint(Sketcher.Constraint("Coincident", 9, 2, 0, 1))
sketch8.addConstraint(Sketcher.Constraint("Horizontal", 0))
sketch8.addConstraint(Sketcher.Constraint("Vertical", 1))
sketch8.addConstraint(Sketcher.Constraint("Horizontal", 2))
sketch8.addConstraint(Sketcher.Constraint("Horizontal", 4))
sketch8.addConstraint(Sketcher.Constraint("Vertical", 5))
sketch8.addConstraint(Sketcher.Constraint("Horizontal", 6))
sketch8.addConstraint(Sketcher.Constraint("Vertical", 7))
sketch8.addConstraint(Sketcher.Constraint("Vertical", 9))
sketch8.addConstraint(Sketcher.Constraint("Coincident", 8, 3, 3, 3))
sketch8.addConstraint(Sketcher.Constraint("Symmetric", 1, 2, 4, 2, -1))
sketch8.addConstraint(Sketcher.Constraint("Symmetric", 6, 2, 9, 2, -1))
sketch8.addConstraint(Sketcher.Constraint("Radius", 3, 32.5))
sketch8.addConstraint(Sketcher.Constraint("Radius", 8, 47.5))
sketch8.addConstraint(Sketcher.Constraint("DistanceX", 0, 2, 0, 1, 45.0))
sketch8.addConstraint(Sketcher.Constraint("DistanceX", 2, 1, 2, 2, 30.0))
sketch8.addConstraint(Sketcher.Constraint("DistanceX", 3, 3, -1, 1, 112.5))
sketch8.addConstraint(Sketcher.Constraint("DistanceY", 7, 2, 7, 1, 26.419222))
pad4 = doc.addObject("PartDesign::Pad", "Pad003")
body.addObject(pad4)
pad4.Profile = sketch8
pad4.Length = 4

# Sketch on XY plane
sketch9 = doc.addObject("Sketcher::SketchObject", "Sketch008")
body.addObject(sketch9)
sketch9.AttachmentSupport = (doc.XY_Plane, [""])
sketch9.MapMode = "FlatFace"
sketch9.addGeometry(Part.LineSegment(App.Vector(-104.6, 52.5, 0), App.Vector(-97.6, 52.5, 0)), False)
sketch9.addGeometry(Part.ArcOfCircle(Part.Circle(App.Vector(-97.6, 50, 0), App.Vector(0, 0, 1), 2.5), math.radians(-90), math.radians(90)), False)
sketch9.addGeometry(Part.LineSegment(App.Vector(-97.6, 47.5, 0), App.Vector(-104.6, 47.5, 0)), False)
sketch9.addGeometry(Part.ArcOfCircle(Part.Circle(App.Vector(-104.6, 50, 0), App.Vector(0, 0, 1), 2.5), math.radians(90), math.radians(270)), False)
sketch9.addGeometry(Part.LineSegment(App.Vector(-129.6, 52.5, 0), App.Vector(-122.6, 52.5, 0)), False)
sketch9.addGeometry(Part.ArcOfCircle(Part.Circle(App.Vector(-122.6, 50, 0), App.Vector(0, 0, 1), 2.5), math.radians(-90), math.radians(90)), False)
sketch9.addGeometry(Part.LineSegment(App.Vector(-122.6, 47.5, 0), App.Vector(-129.6, 47.5, 0)), False)
sketch9.addGeometry(Part.ArcOfCircle(Part.Circle(App.Vector(-129.6, 50, 0), App.Vector(0, 0, 1), 2.5), math.radians(90), math.radians(270)), False)
sketch9.addGeometry(Part.LineSegment(App.Vector(-122.6, -52.5, 0), App.Vector(-129.6, -52.5, 0)), False)
sketch9.addGeometry(Part.ArcOfCircle(Part.Circle(App.Vector(-129.6, -50, 0), App.Vector(0, 0, 1), 2.5), math.radians(90), math.radians(270)), False)
sketch9.addGeometry(Part.LineSegment(App.Vector(-129.6, -47.5, 0), App.Vector(-122.6, -47.5, 0)), False)
sketch9.addGeometry(Part.ArcOfCircle(Part.Circle(App.Vector(-122.6, -50, 0), App.Vector(0, 0, 1), 2.5), math.radians(-90), math.radians(90)), False)
sketch9.addGeometry(Part.LineSegment(App.Vector(-97.6, -52.5, 0), App.Vector(-104.6, -52.5, 0)), False)
sketch9.addGeometry(Part.ArcOfCircle(Part.Circle(App.Vector(-104.6, -50, 0), App.Vector(0, 0, 1), 2.5), math.radians(90), math.radians(270)), False)
sketch9.addGeometry(Part.LineSegment(App.Vector(-104.6, -47.5, 0), App.Vector(-97.6, -47.5, 0)), False)
sketch9.addGeometry(Part.ArcOfCircle(Part.Circle(App.Vector(-97.6, -50, 0), App.Vector(0, 0, 1), 2.5), math.radians(-90), math.radians(90)), False)
sketch9.addConstraint(Sketcher.Constraint("Tangent", 0, 2, 1, 2))
sketch9.addConstraint(Sketcher.Constraint("Tangent", 1, 1, 2, 1))
sketch9.addConstraint(Sketcher.Constraint("Tangent", 2, 2, 3, 2))
sketch9.addConstraint(Sketcher.Constraint("Tangent", 3, 1, 0, 1))
sketch9.addConstraint(Sketcher.Constraint("Tangent", 4, 2, 5, 2))
sketch9.addConstraint(Sketcher.Constraint("Tangent", 5, 1, 6, 1))
sketch9.addConstraint(Sketcher.Constraint("Tangent", 6, 2, 7, 2))
sketch9.addConstraint(Sketcher.Constraint("Tangent", 7, 1, 4, 1))
sketch9.addConstraint(Sketcher.Constraint("Tangent", 8, 2, 9, 2))
sketch9.addConstraint(Sketcher.Constraint("Tangent", 9, 1, 10, 1))
sketch9.addConstraint(Sketcher.Constraint("Tangent", 10, 2, 11, 2))
sketch9.addConstraint(Sketcher.Constraint("Tangent", 11, 1, 8, 1))
sketch9.addConstraint(Sketcher.Constraint("Tangent", 12, 2, 13, 2))
sketch9.addConstraint(Sketcher.Constraint("Tangent", 13, 1, 14, 1))
sketch9.addConstraint(Sketcher.Constraint("Tangent", 14, 2, 15, 2))
sketch9.addConstraint(Sketcher.Constraint("Tangent", 15, 1, 12, 1))
sketch9.addConstraint(Sketcher.Constraint("Horizontal", 0))
sketch9.addConstraint(Sketcher.Constraint("Horizontal", 2))
sketch9.addConstraint(Sketcher.Constraint("Horizontal", 4))
sketch9.addConstraint(Sketcher.Constraint("Horizontal", 6))
sketch9.addConstraint(Sketcher.Constraint("Horizontal", 8))
sketch9.addConstraint(Sketcher.Constraint("Horizontal", 10))
sketch9.addConstraint(Sketcher.Constraint("Horizontal", 12))
sketch9.addConstraint(Sketcher.Constraint("Horizontal", 14))
sketch9.addConstraint(Sketcher.Constraint("Equal", 3, 5))
sketch9.addConstraint(Sketcher.Constraint("Equal", 7, 9))
sketch9.addConstraint(Sketcher.Constraint("Equal", 11, 13))
sketch9.addConstraint(Sketcher.Constraint("Symmetric", 7, 3, 9, 3, -1))
sketch9.addConstraint(Sketcher.Constraint("Symmetric", 3, 3, 13, 3, -1))
sketch9.addConstraint(Sketcher.Constraint("Horizontal", 3, 3, 5, 3))
sketch9.addConstraint(Sketcher.Constraint("Vertical", 5, 3, 11, 3))
sketch9.addConstraint(Sketcher.Constraint("Vertical", 1, 3, 15, 3))
sketch9.addConstraint(Sketcher.Constraint("Equal", 2, 4))
sketch9.addConstraint(Sketcher.Constraint("Radius", 1, 2.5))
sketch9.addConstraint(Sketcher.Constraint("DistanceX", 0, 1, 0, 2, 7.0))
sketch9.addConstraint(Sketcher.Constraint("DistanceY", -1, 1, 1, 3, 50.0))
sketch9.addConstraint(Sketcher.Constraint("DistanceX", 5, 3, 3, 3, 18.0))
sketch9.addConstraint(Sketcher.Constraint("DistanceX", 1, 3, -1, 1, 97.566988))
pocket5 = doc.addObject("PartDesign::Pocket", "Pocket004")
body.addObject(pocket5)
pocket5.Profile = sketch9
pocket5.Length = 4
pocket5.Reversed = True

# Sketch on XY plane
sketch10 = doc.addObject("Sketcher::SketchObject", "Sketch009")
body.addObject(sketch10)
sketch10.AttachmentSupport = (doc.XY_Plane, [""])
sketch10.MapMode = "FlatFace"
sketch10.addGeometry(Part.LineSegment(App.Vector(-80.6, 22.5, 0), App.Vector(-73.6, 22.5, 0)), False)
sketch10.addGeometry(Part.ArcOfCircle(Part.Circle(App.Vector(-73.6, 20, 0), App.Vector(0, 0, 1), 2.5), math.radians(-90), math.radians(90)), False)
sketch10.addGeometry(Part.LineSegment(App.Vector(-73.6, 17.5, 0), App.Vector(-80.6, 17.5, 0)), False)
sketch10.addGeometry(Part.ArcOfCircle(Part.Circle(App.Vector(-80.6, 20, 0), App.Vector(0, 0, 1), 2.5), math.radians(90), math.radians(270)), False)
sketch10.addGeometry(Part.LineSegment(App.Vector(-73.6, -22.5, 0), App.Vector(-80.6, -22.5, 0)), False)
sketch10.addGeometry(Part.ArcOfCircle(Part.Circle(App.Vector(-80.6, -20, 0), App.Vector(0, 0, 1), 2.5), math.radians(90), math.radians(270)), False)
sketch10.addGeometry(Part.LineSegment(App.Vector(-80.6, -17.5, 0), App.Vector(-73.6, -17.5, 0)), False)
sketch10.addGeometry(Part.ArcOfCircle(Part.Circle(App.Vector(-73.6, -20, 0), App.Vector(0, 0, 1), 2.5), math.radians(-90), math.radians(90)), False)
sketch10.addConstraint(Sketcher.Constraint("Tangent", 0, 2, 1, 2))
sketch10.addConstraint(Sketcher.Constraint("Tangent", 1, 1, 2, 1))
sketch10.addConstraint(Sketcher.Constraint("Tangent", 2, 2, 3, 2))
sketch10.addConstraint(Sketcher.Constraint("Tangent", 3, 1, 0, 1))
sketch10.addConstraint(Sketcher.Constraint("Tangent", 4, 2, 5, 2))
sketch10.addConstraint(Sketcher.Constraint("Tangent", 5, 1, 6, 1))
sketch10.addConstraint(Sketcher.Constraint("Tangent", 6, 2, 7, 2))
sketch10.addConstraint(Sketcher.Constraint("Tangent", 7, 1, 4, 1))
sketch10.addConstraint(Sketcher.Constraint("Horizontal", 0))
sketch10.addConstraint(Sketcher.Constraint("Horizontal", 2))
sketch10.addConstraint(Sketcher.Constraint("Horizontal", 4))
sketch10.addConstraint(Sketcher.Constraint("Horizontal", 6))
sketch10.addConstraint(Sketcher.Constraint("Equal", 3, 5))
sketch10.addConstraint(Sketcher.Constraint("Symmetric", 3, 3, 5, 3, -1))
sketch10.addConstraint(Sketcher.Constraint("Vertical", 1, 3, 7, 3))
sketch10.addConstraint(Sketcher.Constraint("Radius", 1, 2.5))
sketch10.addConstraint(Sketcher.Constraint("DistanceX", 0, 1, 0, 2, 7.0))
sketch10.addConstraint(Sketcher.Constraint("DistanceY", -1, 1, 1, 3, 20.0))
sketch10.addConstraint(Sketcher.Constraint("DistanceX", 1, 3, -1, 1, 73.566988))
pocket6 = doc.addObject("PartDesign::Pocket", "Pocket005")
body.addObject(pocket6)
pocket6.Profile = sketch10
pocket6.Length = 4
pocket6.Reversed = True

doc.recompute()
